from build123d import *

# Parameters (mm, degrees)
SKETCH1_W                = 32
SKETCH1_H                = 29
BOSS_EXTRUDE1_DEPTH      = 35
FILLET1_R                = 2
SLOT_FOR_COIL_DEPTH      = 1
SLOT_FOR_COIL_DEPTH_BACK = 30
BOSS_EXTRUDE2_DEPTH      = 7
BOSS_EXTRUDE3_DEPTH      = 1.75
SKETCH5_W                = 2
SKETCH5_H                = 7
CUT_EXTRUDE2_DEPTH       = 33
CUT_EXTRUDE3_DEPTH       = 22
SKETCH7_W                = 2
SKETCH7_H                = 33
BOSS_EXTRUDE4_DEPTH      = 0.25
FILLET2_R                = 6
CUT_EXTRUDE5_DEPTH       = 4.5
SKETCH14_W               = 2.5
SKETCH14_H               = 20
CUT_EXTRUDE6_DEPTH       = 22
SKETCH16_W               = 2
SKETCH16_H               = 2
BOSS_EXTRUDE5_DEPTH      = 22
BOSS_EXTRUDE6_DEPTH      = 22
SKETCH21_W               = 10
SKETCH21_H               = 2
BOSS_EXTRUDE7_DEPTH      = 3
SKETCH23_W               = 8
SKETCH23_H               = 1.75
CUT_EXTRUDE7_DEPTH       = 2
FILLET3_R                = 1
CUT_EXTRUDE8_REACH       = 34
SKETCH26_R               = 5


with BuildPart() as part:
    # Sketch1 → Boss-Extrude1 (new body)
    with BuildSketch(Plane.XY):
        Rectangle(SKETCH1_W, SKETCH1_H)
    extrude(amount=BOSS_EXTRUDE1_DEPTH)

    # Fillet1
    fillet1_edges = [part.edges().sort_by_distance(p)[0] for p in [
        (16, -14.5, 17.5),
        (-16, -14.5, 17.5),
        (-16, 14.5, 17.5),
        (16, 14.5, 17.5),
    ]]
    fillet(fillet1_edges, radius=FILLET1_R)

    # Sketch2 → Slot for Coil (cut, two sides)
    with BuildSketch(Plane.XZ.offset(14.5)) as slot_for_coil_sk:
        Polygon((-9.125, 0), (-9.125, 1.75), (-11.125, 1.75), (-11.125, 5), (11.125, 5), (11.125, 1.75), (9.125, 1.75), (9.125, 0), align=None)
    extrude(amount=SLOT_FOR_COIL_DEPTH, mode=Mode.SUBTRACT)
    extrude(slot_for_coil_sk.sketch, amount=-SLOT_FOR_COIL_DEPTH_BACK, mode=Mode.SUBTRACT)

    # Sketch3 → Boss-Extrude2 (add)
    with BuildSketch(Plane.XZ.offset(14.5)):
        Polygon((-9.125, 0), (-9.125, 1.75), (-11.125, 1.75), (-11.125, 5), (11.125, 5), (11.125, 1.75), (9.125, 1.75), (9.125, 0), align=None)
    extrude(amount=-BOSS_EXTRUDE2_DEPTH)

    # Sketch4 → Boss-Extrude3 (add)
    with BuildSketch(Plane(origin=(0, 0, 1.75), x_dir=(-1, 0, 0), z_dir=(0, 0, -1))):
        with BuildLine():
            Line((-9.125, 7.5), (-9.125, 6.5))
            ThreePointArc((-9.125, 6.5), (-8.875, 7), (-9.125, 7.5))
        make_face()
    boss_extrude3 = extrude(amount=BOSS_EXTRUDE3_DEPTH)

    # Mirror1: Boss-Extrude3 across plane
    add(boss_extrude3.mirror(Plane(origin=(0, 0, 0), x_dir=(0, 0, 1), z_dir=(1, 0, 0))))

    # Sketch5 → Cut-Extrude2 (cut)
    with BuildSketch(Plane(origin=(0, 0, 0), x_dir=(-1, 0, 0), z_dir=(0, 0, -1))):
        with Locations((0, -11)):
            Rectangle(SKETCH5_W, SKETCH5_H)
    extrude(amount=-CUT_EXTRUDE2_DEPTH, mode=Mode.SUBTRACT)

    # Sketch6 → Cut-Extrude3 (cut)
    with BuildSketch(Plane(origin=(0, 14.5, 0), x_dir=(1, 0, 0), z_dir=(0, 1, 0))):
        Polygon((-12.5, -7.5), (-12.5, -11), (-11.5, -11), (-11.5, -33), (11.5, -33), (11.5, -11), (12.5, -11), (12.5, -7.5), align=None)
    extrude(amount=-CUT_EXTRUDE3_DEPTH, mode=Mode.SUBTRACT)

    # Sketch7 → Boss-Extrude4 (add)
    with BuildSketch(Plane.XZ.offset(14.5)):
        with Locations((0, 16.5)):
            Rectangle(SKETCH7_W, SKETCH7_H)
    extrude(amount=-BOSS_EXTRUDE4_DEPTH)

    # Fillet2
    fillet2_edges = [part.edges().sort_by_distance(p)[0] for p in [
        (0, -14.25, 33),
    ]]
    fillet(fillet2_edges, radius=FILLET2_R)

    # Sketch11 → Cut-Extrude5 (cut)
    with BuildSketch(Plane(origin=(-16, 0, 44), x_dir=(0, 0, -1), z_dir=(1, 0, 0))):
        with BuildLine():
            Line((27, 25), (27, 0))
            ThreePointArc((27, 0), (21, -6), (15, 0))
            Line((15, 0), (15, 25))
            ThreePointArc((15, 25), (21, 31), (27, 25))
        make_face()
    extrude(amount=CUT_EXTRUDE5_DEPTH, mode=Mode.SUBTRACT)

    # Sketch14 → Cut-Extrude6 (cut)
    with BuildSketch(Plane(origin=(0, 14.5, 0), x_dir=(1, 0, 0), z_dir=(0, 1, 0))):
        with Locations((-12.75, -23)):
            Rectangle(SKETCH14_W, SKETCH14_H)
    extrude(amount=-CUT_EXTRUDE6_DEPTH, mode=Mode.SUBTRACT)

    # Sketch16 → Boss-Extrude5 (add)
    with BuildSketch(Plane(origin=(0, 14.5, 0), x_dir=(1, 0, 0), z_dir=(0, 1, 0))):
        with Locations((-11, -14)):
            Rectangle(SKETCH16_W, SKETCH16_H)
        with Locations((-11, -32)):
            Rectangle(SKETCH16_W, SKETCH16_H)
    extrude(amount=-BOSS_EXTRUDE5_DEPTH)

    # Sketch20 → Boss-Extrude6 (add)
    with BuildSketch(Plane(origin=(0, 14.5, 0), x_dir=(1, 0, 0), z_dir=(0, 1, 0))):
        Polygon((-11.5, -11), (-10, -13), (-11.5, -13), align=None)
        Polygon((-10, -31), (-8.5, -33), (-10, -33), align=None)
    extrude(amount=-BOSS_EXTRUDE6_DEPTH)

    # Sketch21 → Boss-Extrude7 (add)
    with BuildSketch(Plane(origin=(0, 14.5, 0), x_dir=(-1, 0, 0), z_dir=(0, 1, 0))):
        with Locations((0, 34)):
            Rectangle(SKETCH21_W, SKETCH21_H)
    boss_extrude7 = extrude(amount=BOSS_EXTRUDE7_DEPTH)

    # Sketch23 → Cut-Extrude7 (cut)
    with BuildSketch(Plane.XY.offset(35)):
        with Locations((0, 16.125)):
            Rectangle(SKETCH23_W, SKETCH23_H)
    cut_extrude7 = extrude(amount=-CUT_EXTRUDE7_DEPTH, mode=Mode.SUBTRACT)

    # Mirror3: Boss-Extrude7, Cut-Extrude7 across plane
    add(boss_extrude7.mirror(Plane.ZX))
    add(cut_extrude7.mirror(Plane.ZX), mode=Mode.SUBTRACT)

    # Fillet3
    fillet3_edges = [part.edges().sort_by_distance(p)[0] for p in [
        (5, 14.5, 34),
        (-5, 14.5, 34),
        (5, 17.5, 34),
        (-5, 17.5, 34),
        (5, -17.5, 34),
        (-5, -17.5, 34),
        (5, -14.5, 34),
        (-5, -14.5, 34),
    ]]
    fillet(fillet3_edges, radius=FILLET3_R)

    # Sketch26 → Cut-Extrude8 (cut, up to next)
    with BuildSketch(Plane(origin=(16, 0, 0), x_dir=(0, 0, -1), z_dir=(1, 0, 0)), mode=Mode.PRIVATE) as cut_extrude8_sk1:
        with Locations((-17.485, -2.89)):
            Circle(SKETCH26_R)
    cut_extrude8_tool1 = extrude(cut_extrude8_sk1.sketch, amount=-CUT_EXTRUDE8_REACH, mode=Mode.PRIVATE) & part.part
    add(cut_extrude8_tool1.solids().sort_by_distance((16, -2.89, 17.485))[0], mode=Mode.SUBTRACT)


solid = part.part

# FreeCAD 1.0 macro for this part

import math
import FreeCAD as App
import Part
import Sketcher
from FreeCAD import Vector
Q = App.Units.Quantity


def edges_at(feature, points):
    """Names of the edges that pass closest to the given points."""
    edges = feature.Shape.Edges
    near = lambda p: min(range(len(edges)), key=lambda i: edges[i].distToShape(Part.Vertex(*p))[0])
    return sorted({f"Edge{near(p) + 1}" for p in points})


def add_polygon(sketch, points):
    """Adds a closed chain of lines whose ends are joined by coincident constraints."""
    first, n = sketch.GeometryCount, len(points)
    for a, b in zip(points, points[1:] + points[:1]):
        sketch.addGeometry(Part.LineSegment(App.Vector(*a, 0), App.Vector(*b, 0)), False)
    for i in range(n):
        sketch.addConstraint(Sketcher.Constraint("Coincident", first + i, 2, first + (i + 1) % n, 1))

doc = App.newDocument("Part")
body = doc.addObject("PartDesign::Body", "Body")

sketch1 = doc.addObject("Sketcher::SketchObject", "Sketch")
body.addObject(sketch1)
sketch1.AttachmentSupport = (doc.XY_Plane, [""])
sketch1.MapMode = "FlatFace"
add_polygon(sketch1, [(-16, 14.5), (-16, -14.5), (16, -14.5), (16, 14.5)])
sketch1.addConstraint([
    Sketcher.Constraint("Vertical", 0),
    Sketcher.Constraint("Horizontal", 1),
    Sketcher.Constraint("Vertical", 2),
    Sketcher.Constraint("Horizontal", 3),
    Sketcher.Constraint("Symmetric", 0, 2, 2, 2, -1, 1),
    Sketcher.Constraint("DistanceX", 1, 1, 1, 2, Q("32 mm")),
    Sketcher.Constraint("DistanceY", 0, 2, 0, 1, Q("29 mm")),
])
pad1 = doc.addObject("PartDesign::Pad", "Pad")
body.addObject(pad1)
pad1.Profile = sketch1
pad1.Length = 35
doc.recompute()

fillet = doc.addObject("PartDesign::Fillet", "Fillet")
body.addObject(fillet)
fillet.Base = (pad1, edges_at(pad1, [
    (16, -14.5, 17.5),
    (-16, -14.5, 17.5),
    (-16, 14.5, 17.5),
    (16, 14.5, 17.5),
]))
fillet.Radius = 2

sketch2 = doc.addObject("Sketcher::SketchObject", "Sketch001")
body.addObject(sketch2)
sketch2.AttachmentSupport = (doc.XZ_Plane, [""])
sketch2.MapMode = "FlatFace"
sketch2.AttachmentOffset = App.Placement(Vector(0, 0, 14.5), App.Rotation())
add_polygon(sketch2, [(-9.125, 1.75), (-9.125, 0), (9.125, 0), (9.125, 1.75), (11.125, 1.75), (11.125, 5), (-11.125, 5), (-11.125, 1.75)])
sketch2.addConstraint([
    Sketcher.Constraint("Vertical", 0),
    Sketcher.Constraint("Horizontal", 1),
    Sketcher.Constraint("Vertical", 2),
    Sketcher.Constraint("Horizontal", 3),
    Sketcher.Constraint("Vertical", 4),
    Sketcher.Constraint("Horizontal", 5),
    Sketcher.Constraint("Vertical", 6),
    Sketcher.Constraint("Horizontal", 7),
    Sketcher.Constraint("Symmetric", 0, 2, 1, 2, -1, 1),
    Sketcher.Constraint("Symmetric", 3, 2, 6, 2, -2),
    Sketcher.Constraint("DistanceX", 3, 1, 3, 2, Q("2 mm")),
    Sketcher.Constraint("DistanceY", -1, 1, 4, 2, Q("5 mm")),
    Sketcher.Constraint("DistanceX", 1, 1, 1, 2, Q("18.25 mm")),
    Sketcher.Constraint("DistanceY", 0, 2, 0, 1, Q("1.75 mm")),
])
pocket1 = doc.addObject("PartDesign::Pocket", "Pocket")
body.addObject(pocket1)
pocket1.Profile = sketch2
pocket1.Type = "ThroughAll"
pocket1.Midplane = True

sketch3 = doc.addObject("Sketcher::SketchObject", "Sketch002")
body.addObject(sketch3)
sketch3.AttachmentSupport = (doc.XZ_Plane, [""])
sketch3.MapMode = "FlatFace"
sketch3.AttachmentOffset = App.Placement(Vector(0, 0, 14.5), App.Rotation())
add_polygon(sketch3, [(-9.125, 1.75), (-9.125, 0), (9.125, 0), (9.125, 1.75), (11.125, 1.75), (11.125, 5), (-11.125, 5), (-11.125, 1.75)])
sketch3.addConstraint([
    Sketcher.Constraint("Vertical", 0),
    Sketcher.Constraint("Horizontal", 1),
    Sketcher.Constraint("Vertical", 2),
    Sketcher.Constraint("Horizontal", 3),
    Sketcher.Constraint("Vertical", 4),
    Sketcher.Constraint("Horizontal", 5),
    Sketcher.Constraint("Vertical", 6),
    Sketcher.Constraint("Horizontal", 7),
    Sketcher.Constraint("Symmetric", 0, 2, 1, 2, -1, 1),
    Sketcher.Constraint("Symmetric", 3, 2, 6, 2, -2),
    Sketcher.Constraint("DistanceX", 3, 1, 3, 2, Q("2 mm")),
    Sketcher.Constraint("DistanceY", -1, 1, 4, 2, Q("5 mm")),
    Sketcher.Constraint("DistanceX", 1, 1, 1, 2, Q("18.25 mm")),
    Sketcher.Constraint("DistanceY", 0, 2, 0, 1, Q("1.75 mm")),
])
pad2 = doc.addObject("PartDesign::Pad", "Pad001")
body.addObject(pad2)
pad2.Profile = sketch3
pad2.Length = 7
pad2.Reversed = True

sketch4 = doc.addObject("Sketcher::SketchObject", "Sketch003")
body.addObject(sketch4)
sketch4.AttachmentSupport = (doc.XY_Plane, [""])
sketch4.MapMode = "FlatFace"
sketch4.AttachmentOffset = App.Placement(Vector(0, 0, 1.75), App.Rotation())
sketch4.addGeometry([
    Part.LineSegment(Vector(9.125, 7.5, 0), Vector(9.125, 6.5, 0)),
    Part.ArcOfCircle(Part.Circle(Vector(9.5, 7, 0), Vector(0, 0, 1), 0.625), math.radians(126.869898), math.radians(233.130102)),
], False)
sketch4.addConstraint([
    Sketcher.Constraint("Coincident", 0, 1, 1, 1),
    Sketcher.Constraint("Coincident", 1, 2, 0, 2),
    Sketcher.Constraint("Vertical", 0),
    Sketcher.Constraint("DistanceY", 0, 2, 0, 1, Q("1 mm")),
    Sketcher.Constraint("DistanceY", -1, 1, 1, 3, Q("7 mm")),
    Sketcher.Constraint("Radius", 1, Q("0.625 mm")),
    Sketcher.Constraint("DistanceX", -1, 1, 1, 3, Q("9.5 mm")),
])
pad3 = doc.addObject("PartDesign::Pad", "Pad002")
body.addObject(pad3)
pad3.Profile = sketch4
pad3.Length = 1.75
pad3.Reversed = True
doc.recompute()

mirrored = doc.addObject("PartDesign::Mirrored", "Mirrored")
body.addObject(mirrored)
mirrored.Originals = [pad3]
mirrored.MirrorPlane = (doc.YZ_Plane, [""])
body.Tip = mirrored

sketch5 = doc.addObject("Sketcher::SketchObject", "Sketch004")
body.addObject(sketch5)
sketch5.AttachmentSupport = (doc.XY_Plane, [""])
sketch5.MapMode = "FlatFace"
add_polygon(sketch5, [(1, -7.5), (1, -14.5), (-1, -14.5), (-1, -7.5)])
sketch5.addConstraint([
    Sketcher.Constraint("Vertical", 0),
    Sketcher.Constraint("Horizontal", 1),
    Sketcher.Constraint("Vertical", 2),
    Sketcher.Constraint("Horizontal", 3),
    Sketcher.Constraint("DistanceX", 1, 2, 1, 1, Q("2 mm")),
    Sketcher.Constraint("DistanceY", 0, 2, 0, 1, Q("7 mm")),
    Sketcher.Constraint("DistanceX", -1, 1, 0, 2, Q("1 mm")),
    Sketcher.Constraint("DistanceY", 0, 2, -1, 1, Q("14.5 mm")),
])
pocket2 = doc.addObject("PartDesign::Pocket", "Pocket001")
body.addObject(pocket2)
pocket2.Profile = sketch5
pocket2.Length = 33
pocket2.Reversed = True

sketch6 = doc.addObject("Sketcher::SketchObject", "Sketch005")
body.addObject(sketch6)
sketch6.AttachmentSupport = (doc.XZ_Plane, [""])
sketch6.MapMode = "FlatFace"
sketch6.AttachmentOffset = App.Placement(Vector(0, 0, -14.5), App.Rotation())
add_polygon(sketch6, [(-12.5, 7.5), (-12.5, 11), (-11.5, 11), (-11.5, 33), (11.5, 33), (11.5, 11), (12.5, 11), (12.5, 7.5)])
sketch6.addConstraint([
    Sketcher.Constraint("Vertical", 0),
    Sketcher.Constraint("Horizontal", 1),
    Sketcher.Constraint("Vertical", 2),
    Sketcher.Constraint("Horizontal", 3),
    Sketcher.Constraint("Vertical", 4),
    Sketcher.Constraint("Horizontal", 5),
    Sketcher.Constraint("Vertical", 6),
    Sketcher.Constraint("Horizontal", 7),
    Sketcher.Constraint("Symmetric", 1, 2, 4, 2, -2),
    Sketcher.Constraint("Equal", 1, 5),
    Sketcher.Constraint("DistanceX", 1, 1, 1, 2, Q("1 mm")),
    Sketcher.Constraint("DistanceX", 3, 1, 3, 2, Q("23 mm")),
    Sketcher.Constraint("DistanceY", 2, 1, 2, 2, Q("22 mm")),
    Sketcher.Constraint("DistanceY", 0, 1, 0, 2, Q("3.5 mm")),
    Sketcher.Constraint("DistanceY", -1, 1, 0, 2, Q("11 mm")),
])
pocket3 = doc.addObject("PartDesign::Pocket", "Pocket002")
body.addObject(pocket3)
pocket3.Profile = sketch6
pocket3.Length = 22
pocket3.Reversed = True

sketch7 = doc.addObject("Sketcher::SketchObject", "Sketch006")
body.addObject(sketch7)
sketch7.AttachmentSupport = (doc.XZ_Plane, [""])
sketch7.MapMode = "FlatFace"
sketch7.AttachmentOffset = App.Placement(Vector(0, 0, 14.5), App.Rotation())
add_polygon(sketch7, [(-1, 33), (-1, 0), (1, 0), (1, 33)])
sketch7.addConstraint([
    Sketcher.Constraint("Vertical", 0),
    Sketcher.Constraint("Horizontal", 1),
    Sketcher.Constraint("Vertical", 2),
    Sketcher.Constraint("Horizontal", 3),
    Sketcher.Constraint("Symmetric", 0, 2, 1, 2, -1, 1),
    Sketcher.Constraint("DistanceX", 1, 1, 1, 2, Q("2 mm")),
    Sketcher.Constraint("DistanceY", 0, 2, 0, 1, Q("33 mm")),
])
pad4 = doc.addObject("PartDesign::Pad", "Pad003")
body.addObject(pad4)
pad4.Profile = sketch7
pad4.Length = 0.25
pad4.Reversed = True
doc.recompute()

fillet2 = doc.addObject("PartDesign::Fillet", "Fillet001")
body.addObject(fillet2)
fillet2.Base = (pad4, edges_at(pad4, [(0, -14.25, 33)]))
fillet2.Radius = 6

sketch8 = doc.addObject("Sketcher::SketchObject", "Sketch007")
body.addObject(sketch8)
sketch8.AttachmentSupport = (doc.YZ_Plane, [""])
sketch8.MapMode = "FlatFace"
sketch8.AttachmentOffset = App.Placement(Vector(0, 0, -16), App.Rotation())
sketch8.addGeometry([
    Part.LineSegment(Vector(0, 17, 0), Vector(25, 17, 0)),
    Part.ArcOfCircle(Part.Circle(Vector(25, 23, 0), Vector(0, 0, 1), 6), math.radians(-90), math.radians(90)),
    Part.LineSegment(Vector(25, 29, 0), Vector(0, 29, 0)),
    Part.ArcOfCircle(Part.Circle(Vector(0, 23, 0), Vector(0, 0, 1), 6), math.radians(90), math.radians(270)),
], False)
sketch8.addConstraint([
    Sketcher.Constraint("Tangent", 0, 2, 1, 1),
    Sketcher.Constraint("Tangent", 1, 2, 2, 1),
    Sketcher.Constraint("Tangent", 2, 2, 3, 1),
    Sketcher.Constraint("Tangent", 3, 2, 0, 1),
    Sketcher.Constraint("Horizontal", 0),
    Sketcher.Constraint("Horizontal", 2),
    Sketcher.Constraint("PointOnObject", 3, 3, -2),
    Sketcher.Constraint("Radius", 1, Q("6 mm")),
    Sketcher.Constraint("DistanceX", 0, 1, 0, 2, Q("25 mm")),
    Sketcher.Constraint("DistanceY", -1, 1, 1, 3, Q("23 mm")),
])
pocket4 = doc.addObject("PartDesign::Pocket", "Pocket003")
body.addObject(pocket4)
pocket4.Profile = sketch8
pocket4.Length = 4.5
pocket4.Reversed = True

sketch9 = doc.addObject("Sketcher::SketchObject", "Sketch008")
body.addObject(sketch9)
sketch9.AttachmentSupport = (doc.XZ_Plane, [""])
sketch9.MapMode = "FlatFace"
sketch9.AttachmentOffset = App.Placement(Vector(0, 0, -14.5), App.Rotation())
add_polygon(sketch9, [(-14, 13), (-14, 33), (-11.5, 33), (-11.5, 13)])
sketch9.addConstraint([
    Sketcher.Constraint("Vertical", 0),
    Sketcher.Constraint("Horizontal", 1),
    Sketcher.Constraint("Vertical", 2),
    Sketcher.Constraint("Horizontal", 3),
    Sketcher.Constraint("DistanceY", 0, 1, 0, 2, Q("20 mm")),
    Sketcher.Constraint("DistanceX", 1, 1, 1, 2, Q("2.5 mm")),
    Sketcher.Constraint("DistanceX", 0, 2, -1, 1, Q("14 mm")),
    Sketcher.Constraint("DistanceY", -1, 1, 0, 2, Q("33 mm")),
])
pocket5 = doc.addObject("PartDesign::Pocket", "Pocket004")
body.addObject(pocket5)
pocket5.Profile = sketch9
pocket5.Length = 22
pocket5.Reversed = True

sketch10 = doc.addObject("Sketcher::SketchObject", "Sketch009")
body.addObject(sketch10)
sketch10.AttachmentSupport = (doc.XZ_Plane, [""])
sketch10.MapMode = "FlatFace"
sketch10.AttachmentOffset = App.Placement(Vector(0, 0, -14.5), App.Rotation())
add_polygon(sketch10, [(-12, 13), (-12, 15), (-10, 15), (-10, 13)])
add_polygon(sketch10, [(-12, 31), (-12, 33), (-10, 33), (-10, 31)])
sketch10.addConstraint([
    Sketcher.Constraint("Vertical", 0),
    Sketcher.Constraint("Horizontal", 1),
    Sketcher.Constraint("Vertical", 2),
    Sketcher.Constraint("Horizontal", 3),
    Sketcher.Constraint("Vertical", 4),
    Sketcher.Constraint("Horizontal", 5),
    Sketcher.Constraint("Vertical", 6),
    Sketcher.Constraint("Horizontal", 7),
    Sketcher.Constraint("Vertical", 3, 2, 4, 2),
    Sketcher.Constraint("Vertical", 2, 2, 5, 2),
    Sketcher.Constraint("Equal", 7, 0),
    Sketcher.Constraint("Equal", 2, 4),
    Sketcher.Constraint("DistanceX", 1, 1, 1, 2, Q("2 mm")),
    Sketcher.Constraint("DistanceX", 0, 2, -1, 1, Q("12 mm")),
    Sketcher.Constraint("DistanceY", -1, 1, 0, 2, Q("15 mm")),
    Sketcher.Constraint("DistanceY", -1, 1, 4, 2, Q("33 mm")),
])
pad5 = doc.addObject("PartDesign::Pad", "Pad004")
body.addObject(pad5)
pad5.Profile = sketch10
pad5.Length = 22

sketch11 = doc.addObject("Sketcher::SketchObject", "Sketch010")
body.addObject(sketch11)
sketch11.AttachmentSupport = (doc.XZ_Plane, [""])
sketch11.MapMode = "FlatFace"
sketch11.AttachmentOffset = App.Placement(Vector(0, 0, -14.5), App.Rotation())
add_polygon(sketch11, [(-10, 13), (-11.5, 11), (-11.5, 13)])
add_polygon(sketch11, [(-8.5, 33), (-10, 31), (-10, 33)])
sketch11.addConstraint([
    Sketcher.Constraint("Vertical", 1),
    Sketcher.Constraint("Horizontal", 2),
    Sketcher.Constraint("Vertical", 4),
    Sketcher.Constraint("Horizontal", 5),
    Sketcher.Constraint("Parallel", 0, 3),
    Sketcher.Constraint("Vertical", 2, 2, 3, 2),
    Sketcher.Constraint("Equal", 2, 5),
    Sketcher.Constraint("DistanceY", 1, 1, 1, 2, Q("2 mm")),
    Sketcher.Constraint("DistanceX", 2, 1, 2, 2, Q("1.5 mm")),
    Sketcher.Constraint("DistanceY", -1, 1, 0, 2, Q("11 mm")),
    Sketcher.Constraint("DistanceX", 2, 2, -1, 1, Q("10 mm")),
    Sketcher.Constraint("DistanceY", -1, 1, 3, 2, Q("31 mm")),
])
pad6 = doc.addObject("PartDesign::Pad", "Pad005")
body.addObject(pad6)
pad6.Profile = sketch11
pad6.Length = 22

sketch12 = doc.addObject("Sketcher::SketchObject", "Sketch011")
body.addObject(sketch12)
sketch12.AttachmentSupport = (doc.XZ_Plane, [""])
sketch12.MapMode = "FlatFace"
sketch12.AttachmentOffset = App.Placement(Vector(0, 0, -14.5), App.Rotation())
add_polygon(sketch12, [(5, 35), (5, 33), (-5, 33), (-5, 35)])
sketch12.addConstraint([
    Sketcher.Constraint("Vertical", 0),
    Sketcher.Constraint("Horizontal", 1),
    Sketcher.Constraint("Vertical", 2),
    Sketcher.Constraint("Horizontal", 3),
    Sketcher.Constraint("DistanceX", 1, 2, 1, 1, Q("10 mm")),
    Sketcher.Constraint("DistanceY", 0, 2, 0, 1, Q("2 mm")),
    Sketcher.Constraint("DistanceX", -1, 1, 0, 2, Q("5 mm")),
    Sketcher.Constraint("DistanceY", -1, 1, 0, 2, Q("33 mm")),
])
pad7 = doc.addObject("PartDesign::Pad", "Pad006")
body.addObject(pad7)
pad7.Profile = sketch12
pad7.Length = 3
pad7.Reversed = True

sketch13 = doc.addObject("Sketcher::SketchObject", "Sketch012")
body.addObject(sketch13)
sketch13.AttachmentSupport = (doc.XY_Plane, [""])
sketch13.MapMode = "FlatFace"
sketch13.AttachmentOffset = App.Placement(Vector(0, 0, 35), App.Rotation())
add_polygon(sketch13, [(-4, 17), (-4, 15.25), (4, 15.25), (4, 17)])
sketch13.addConstraint([
    Sketcher.Constraint("Vertical", 0),
    Sketcher.Constraint("Horizontal", 1),
    Sketcher.Constraint("Vertical", 2),
    Sketcher.Constraint("Horizontal", 3),
    Sketcher.Constraint("DistanceX", 1, 1, 1, 2, Q("8 mm")),
    Sketcher.Constraint("DistanceX", 0, 2, -1, 1, Q("4 mm")),
    Sketcher.Constraint("DistanceY", -1, 1, 2, 2, Q("17 mm")),
    Sketcher.Constraint("DistanceY", 0, 2, 0, 1, Q("1.75 mm")),
])
pocket6 = doc.addObject("PartDesign::Pocket", "Pocket005")
body.addObject(pocket6)
pocket6.Profile = sketch13
pocket6.Length = 2
doc.recompute()

mirrored2 = doc.addObject("PartDesign::Mirrored", "Mirrored001")
body.addObject(mirrored2)
mirrored2.Originals = [pad7, pocket6]
mirrored2.MirrorPlane = (doc.XZ_Plane, [""])
body.Tip = mirrored2
doc.recompute()

fillet3 = doc.addObject("PartDesign::Fillet", "Fillet002")
body.addObject(fillet3)
fillet3.Base = (mirrored2, edges_at(mirrored2, [
    (5, 14.5, 34),
    (-5, 14.5, 34),
    (5, 17.5, 34),
    (-5, 17.5, 34),
    (5, -17.5, 34),
    (-5, -17.5, 34),
    (5, -14.5, 34),
    (-5, -14.5, 34),
]))
fillet3.Radius = 1

sketch14 = doc.addObject("Sketcher::SketchObject", "Sketch013")
body.addObject(sketch14)
sketch14.AttachmentSupport = (doc.YZ_Plane, [""])
sketch14.MapMode = "FlatFace"
sketch14.AttachmentOffset = App.Placement(Vector(0, 0, 16), App.Rotation())
sketch14.addGeometry(Part.Circle(Vector(-2.89, 17.485, 0), Vector(0, 0, 1), 5), False)
sketch14.addConstraint([
    Sketcher.Constraint("Diameter", 0, Q("10 mm")),
    Sketcher.Constraint("DistanceX", 0, 3, -1, 1, Q("2.89 mm")),
    Sketcher.Constraint("DistanceY", -1, 1, 0, 3, Q("17.485 mm")),
])
pocket7 = doc.addObject("PartDesign::Pocket", "Pocket006")
body.addObject(pocket7)
pocket7.Profile = sketch14
pocket7.Length = 15

doc.recompute()
